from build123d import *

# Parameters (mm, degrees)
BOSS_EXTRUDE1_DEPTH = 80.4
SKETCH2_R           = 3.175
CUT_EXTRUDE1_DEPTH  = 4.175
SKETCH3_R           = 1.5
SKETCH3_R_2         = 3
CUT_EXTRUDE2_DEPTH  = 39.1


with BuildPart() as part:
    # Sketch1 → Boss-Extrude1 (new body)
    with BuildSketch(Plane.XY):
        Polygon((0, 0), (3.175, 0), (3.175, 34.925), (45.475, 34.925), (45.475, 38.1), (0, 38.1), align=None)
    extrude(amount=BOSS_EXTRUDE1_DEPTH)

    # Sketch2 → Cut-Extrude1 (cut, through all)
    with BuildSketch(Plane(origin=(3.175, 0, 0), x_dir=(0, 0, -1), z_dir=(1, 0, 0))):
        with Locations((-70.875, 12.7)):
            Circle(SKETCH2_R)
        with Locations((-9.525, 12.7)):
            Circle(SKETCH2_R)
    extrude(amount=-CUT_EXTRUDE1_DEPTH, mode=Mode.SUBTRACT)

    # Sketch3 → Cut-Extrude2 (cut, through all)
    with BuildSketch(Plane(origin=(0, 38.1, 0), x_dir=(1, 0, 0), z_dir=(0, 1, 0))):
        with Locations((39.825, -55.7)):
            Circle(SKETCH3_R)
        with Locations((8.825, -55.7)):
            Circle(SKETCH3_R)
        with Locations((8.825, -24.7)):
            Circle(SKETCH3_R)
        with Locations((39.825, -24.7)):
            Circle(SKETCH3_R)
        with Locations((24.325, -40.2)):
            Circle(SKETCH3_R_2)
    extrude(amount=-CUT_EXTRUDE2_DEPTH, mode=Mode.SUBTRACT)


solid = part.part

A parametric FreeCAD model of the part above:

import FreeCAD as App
import Part
import Sketcher
from FreeCAD import Vector
Q = App.Units.Quantity


def add_polygon(sketch, points):
    """Adds a closed chain of lines whose ends are joined by coincident constraints."""
    first, n = sketch.GeometryCount, len(points)
    for a, b in zip(points, points[1:] + points[:1]):
        sketch.addGeometry(Part.LineSegment(App.Vector(*a, 0), App.Vector(*b, 0)), False)
    for i in range(n):
        sketch.addConstraint(Sketcher.Constraint("Coincident", first + i, 2, first + (i + 1) % n, 1))

doc = App.newDocument("Part")
body = doc.addObject("PartDesign::Body", "Body")

# Sketch on XY plane
sketch1 = doc.addObject("Sketcher::SketchObject", "Sketch")
body.addObject(sketch1)
sketch1.AttachmentSupport = (doc.XY_Plane, [""])
sketch1.MapMode = "FlatFace"
add_polygon(sketch1, [(0, 0), (3.2, 0), (3.2, 34.9), (45.5, 34.9), (45.5, 38.1), (0, 38.1)])  # lines 0-5
sketch1.addConstraint(Sketcher.Constraint("Horizontal", 0))
sketch1.addConstraint(Sketcher.Constraint("Vertical", 1))
sketch1.addConstraint(Sketcher.Constraint("Horizontal", 2))
sketch1.addConstraint(Sketcher.Constraint("Vertical", 3))
sketch1.addConstraint(Sketcher.Constraint("Horizontal", 4))
sketch1.addConstraint(Sketcher.Constraint("Vertical", 5))
sketch1.addConstraint(Sketcher.Constraint("Coincident", 5, 2, -1, 1))
sketch1.addConstraint(Sketcher.Constraint("Equal", 0, 3))
sketch1.addConstraint(Sketcher.Constraint("DistanceX", 2, 1, 2, 2, Q("42.3 mm")))
sketch1.addConstraint(Sketcher.Constraint("DistanceY", 5, 2, 5, 1, Q("38.1 mm")))
sketch1.addConstraint(Sketcher.Constraint("DistanceX", 0, 1, 0, 2, Q("3.175 mm")))
pad1 = doc.addObject("PartDesign::Pad", "Pad")
body.addObject(pad1)
pad1.Profile = sketch1
pad1.Length = 80.4

# Sketch on YZ plane
sketch2 = doc.addObject("Sketcher::SketchObject", "Sketch001")
body.addObject(sketch2)
sketch2.AttachmentSupport = (doc.YZ_Plane, [""])
sketch2.MapMode = "FlatFace"
sketch2.AttachmentOffset = App.Placement(Vector(0, 0, 3.175), App.Rotation())
sketch2.addGeometry(Part.Circle(Vector(12.7, 70.9, 0), Vector(0, 0, 1), 3.2), False)
sketch2.addGeometry(Part.Circle(Vector(12.7, 9.5, 0), Vector(0, 0, 1), 3.2), False)
sketch2.addConstraint(Sketcher.Constraint("Equal", 0, 1))
sketch2.addConstraint(Sketcher.Constraint("Vertical", 0, 3, 1, 3))
sketch2.addConstraint(Sketcher.Constraint("Diameter", 0, Q("6.35 mm")))
sketch2.addConstraint(Sketcher.Constraint("DistanceX", -1, 1, 0, 3, Q("12.7 mm")))
sketch2.addConstraint(Sketcher.Constraint("DistanceY", 1, 3, 0, 3, Q("61.35 mm")))
sketch2.addConstraint(Sketcher.Constraint("DistanceY", -1, 1, 0, 3, Q("70.875 mm")))
pocket1 = doc.addObject("PartDesign::Pocket", "Pocket")
body.addObject(pocket1)
pocket1.Profile = sketch2
pocket1.Type = "ThroughAll"

# Sketch on XZ plane
sketch3 = doc.addObject("Sketcher::SketchObject", "Sketch002")
body.addObject(sketch3)
sketch3.AttachmentSupport = (doc.XZ_Plane, [""])
sketch3.MapMode = "FlatFace"
sketch3.AttachmentOffset = App.Placement(Vector(0, 0, -38.1), App.Rotation())
sketch3.addGeometry(Part.Circle(Vector(39.8, 55.7, 0), Vector(0, 0, 1), 1.5), False)
sketch3.addGeometry(Part.Circle(Vector(8.8, 55.7, 0), Vector(0, 0, 1), 1.5), False)
sketch3.addGeometry(Part.Circle(Vector(8.8, 24.7, 0), Vector(0, 0, 1), 1.5), False)
sketch3.addGeometry(Part.Circle(Vector(39.8, 24.7, 0), Vector(0, 0, 1), 1.5), False)
sketch3.addGeometry(Part.Circle(Vector(24.3, 40.2, 0), Vector(0, 0, 1), 3), False)
sketch3.addConstraint(Sketcher.Constraint("Equal", 0, 1))
sketch3.addConstraint(Sketcher.Constraint("Equal", 1, 2))
sketch3.addConstraint(Sketcher.Constraint("Equal", 2, 3))
sketch3.addConstraint(Sketcher.Constraint("Horizontal", 0, 3, 1, 3))
sketch3.addConstraint(Sketcher.Constraint("Horizontal", 2, 3, 3, 3))
sketch3.addConstraint(Sketcher.Constraint("Vertical", 1, 3, 2, 3))
sketch3.addConstraint(Sketcher.Constraint("Vertical", 0, 3, 3, 3))
sketch3.addConstraint(Sketcher.Constraint("Diameter", 0, Q("3 mm")))
sketch3.addConstraint(Sketcher.Constraint("Diameter", 4, Q("6 mm")))
sketch3.addConstraint(Sketcher.Constraint("DistanceX", 1, 3, 0, 3, Q("31 mm")))
sketch3.addConstraint(Sketcher.Constraint("DistanceY", 2, 3, 1, 3, Q("31 mm")))
sketch3.addConstraint(Sketcher.Constraint("DistanceY", -1, 1, 0, 3, Q("55.7 mm")))
sketch3.addConstraint(Sketcher.Constraint("DistanceY", -1, 1, 4, 3, Q("40.2 mm")))
sketch3.addConstraint(Sketcher.Constraint("DistanceX", 1, 3, 4, 3, Q("15.5 mm")))
sketch3.addConstraint(Sketcher.Constraint("DistanceX", -1, 1, 0, 3, Q("39.825 mm")))
pocket2 = doc.addObject("PartDesign::Pocket", "Pocket001")
body.addObject(pocket2)
pocket2.Profile = sketch3
pocket2.Type = "ThroughAll"
pocket2.Reversed = True

doc.recompute()
